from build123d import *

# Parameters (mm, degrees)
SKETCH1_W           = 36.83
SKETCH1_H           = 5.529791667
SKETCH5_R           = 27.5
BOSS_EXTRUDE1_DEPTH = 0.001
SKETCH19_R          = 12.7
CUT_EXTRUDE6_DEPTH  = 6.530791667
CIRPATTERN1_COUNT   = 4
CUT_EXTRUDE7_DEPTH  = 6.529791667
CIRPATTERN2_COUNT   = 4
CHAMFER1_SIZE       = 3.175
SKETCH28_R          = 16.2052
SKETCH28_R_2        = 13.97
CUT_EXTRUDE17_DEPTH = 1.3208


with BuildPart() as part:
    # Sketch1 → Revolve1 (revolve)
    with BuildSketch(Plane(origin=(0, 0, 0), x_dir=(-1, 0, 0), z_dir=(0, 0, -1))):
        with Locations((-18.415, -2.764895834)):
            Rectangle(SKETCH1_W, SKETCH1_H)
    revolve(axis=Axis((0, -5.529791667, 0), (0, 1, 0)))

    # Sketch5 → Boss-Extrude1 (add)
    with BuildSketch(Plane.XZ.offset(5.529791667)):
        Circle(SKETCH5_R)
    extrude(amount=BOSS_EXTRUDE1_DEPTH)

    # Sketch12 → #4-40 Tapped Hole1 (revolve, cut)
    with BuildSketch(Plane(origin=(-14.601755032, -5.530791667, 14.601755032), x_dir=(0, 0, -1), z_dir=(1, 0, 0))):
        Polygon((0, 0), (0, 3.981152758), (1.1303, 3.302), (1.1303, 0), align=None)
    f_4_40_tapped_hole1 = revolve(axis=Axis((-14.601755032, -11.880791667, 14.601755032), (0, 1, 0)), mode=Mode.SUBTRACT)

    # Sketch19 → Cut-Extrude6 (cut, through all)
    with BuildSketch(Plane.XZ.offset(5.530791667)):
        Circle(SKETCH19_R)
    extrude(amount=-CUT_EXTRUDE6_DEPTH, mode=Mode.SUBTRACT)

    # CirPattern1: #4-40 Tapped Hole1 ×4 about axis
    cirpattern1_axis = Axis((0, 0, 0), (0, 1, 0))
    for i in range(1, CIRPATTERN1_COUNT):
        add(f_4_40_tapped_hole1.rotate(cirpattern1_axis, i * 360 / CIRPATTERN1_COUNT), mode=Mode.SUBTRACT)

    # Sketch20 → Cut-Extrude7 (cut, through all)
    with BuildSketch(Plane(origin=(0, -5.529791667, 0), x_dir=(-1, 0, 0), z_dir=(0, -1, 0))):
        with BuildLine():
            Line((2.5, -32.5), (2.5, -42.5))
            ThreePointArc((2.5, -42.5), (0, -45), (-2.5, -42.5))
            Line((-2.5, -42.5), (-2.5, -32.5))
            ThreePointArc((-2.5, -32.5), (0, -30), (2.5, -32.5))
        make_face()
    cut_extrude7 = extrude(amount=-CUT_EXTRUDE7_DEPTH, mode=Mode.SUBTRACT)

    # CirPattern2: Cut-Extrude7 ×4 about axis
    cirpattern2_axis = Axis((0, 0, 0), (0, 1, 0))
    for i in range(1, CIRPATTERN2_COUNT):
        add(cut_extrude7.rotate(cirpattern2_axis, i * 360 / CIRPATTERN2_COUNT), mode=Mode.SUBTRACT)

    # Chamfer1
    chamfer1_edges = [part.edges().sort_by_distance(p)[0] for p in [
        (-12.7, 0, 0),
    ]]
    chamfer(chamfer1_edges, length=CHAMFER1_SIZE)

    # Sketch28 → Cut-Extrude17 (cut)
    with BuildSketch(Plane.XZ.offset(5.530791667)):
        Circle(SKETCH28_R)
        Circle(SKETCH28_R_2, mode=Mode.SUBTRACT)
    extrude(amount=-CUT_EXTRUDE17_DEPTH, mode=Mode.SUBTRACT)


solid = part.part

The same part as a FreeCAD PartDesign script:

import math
import FreeCAD as App
import Part
import Sketcher
Q = App.Units.Quantity


def edges_at(feature, points):
    """Names of the edges that pass closest to the given points."""
    edges = feature.Shape.Edges
    near = lambda p: min(range(len(edges)), key=lambda i: edges[i].distToShape(Part.Vertex(*p))[0])
    return sorted({f"Edge{near(p) + 1}" for p in points})


def add_polygon(sketch, points):
    """Adds a closed chain of lines whose ends are joined by coincident constraints."""
    first, n = sketch.GeometryCount, len(points)
    for a, b in zip(points, points[1:] + points[:1]):
        sketch.addGeometry(Part.LineSegment(App.Vector(*a, 0), App.Vector(*b, 0)), False)
    for i in range(n):
        sketch.addConstraint(Sketcher.Constraint("Coincident", first + i, 2, first + (i + 1) % n, 1))

doc = App.newDocument("Part")
body = doc.addObject("PartDesign::Body", "Body")

sketch1 = body.newObject("Sketcher::SketchObject", "Sketch")
sketch1.AttachmentSupport = (doc.getObject("XY_Plane"), [""])
sketch1.MapMode = "FlatFace"
add_polygon(sketch1, [(36.83, 0), (36.83, -5.529792), (0, -5.529792), (0, 0)])
sketch1.addConstraint([
    Sketcher.Constraint("Vertical", 0),
    Sketcher.Constraint("Horizontal", 1),
    Sketcher.Constraint("Vertical", 2),
    Sketcher.Constraint("Horizontal", 3),
    Sketcher.Constraint("Coincident", 2, 2, -1, 1),
    Sketcher.Constraint("DistanceX", 1, 2, 1, 1, Q("1.45 in")),
    Sketcher.Constraint("DistanceY", 0, 2, 0, 1, Q("5.529792 mm")),
])
revolution = body.newObject("PartDesign::Revolution", "Revolution")
revolution.Profile = sketch1
revolution.ReferenceAxis = (sketch1, ["V_Axis"])
revolution.Angle = 360

sketch2 = body.newObject("Sketcher::SketchObject", "Sketch001")
sketch2.AttachmentSupport = (doc.getObject("XZ_Plane"), [""])
sketch2.MapMode = "FlatFace"
sketch2.AttachmentOffset = App.Placement(App.Vector(0, 0, 5.529792), App.Rotation())
sketch2.addGeometry(Part.Circle(App.Vector(0, 0, 0), App.Vector(0, 0, 1), 27.5), False)
sketch2.addConstraint([
    Sketcher.Constraint("Coincident", 0, 3, -1, 1),
    Sketcher.Constraint("Diameter", 0, Q("55 mm")),
])
pad1 = body.newObject("PartDesign::Pad", "Pad")
pad1.Profile = sketch2
pad1.Length = 0.001

sketch3 = body.newObject("Sketcher::SketchObject", "Sketch002")
sketch3.AttachmentSupport = (doc.getObject("YZ_Plane"), [""])
sketch3.MapMode = "FlatFace"
sketch3.AttachmentOffset = App.Placement(App.Vector(0, 0, -14.601755), App.Rotation())
add_polygon(sketch3, [(-1.549639, 14.601755), (-5.530792, 14.601755), (-5.530792, 13.471455), (-2.228792, 13.471455)])
sketch3.addGeometry(Part.LineSegment(App.Vector(-5.530792, 14.601755, 0), App.Vector(-1.549639, 14.601755, 0)), True)
sketch3.addConstraint([
    Sketcher.Constraint("Horizontal", 0),
    Sketcher.Constraint("Vertical", 1),
    Sketcher.Constraint("Horizontal", 2),
    Sketcher.Constraint("Horizontal", 4),
    Sketcher.Constraint("Coincident", 4, 1, 0, 2),
    Sketcher.Constraint("Equal", 0, 4),
    Sketcher.Constraint("Angle", 3, Q("59 deg")),
    Sketcher.Constraint("DistanceX", 2, 1, 2, 2, Q("0.13 in")),
    Sketcher.Constraint("DistanceY", 1, 2, 1, 1, Q("0.0445 in")),
    Sketcher.Constraint("DistanceX", 0, 2, -1, 1, Q("5.530792 mm")),
    Sketcher.Constraint("DistanceY", -1, 1, 0, 2, Q("14.601755 mm")),
])
groove = body.newObject("PartDesign::Groove", "Groove")
groove.Profile = sketch3
groove.ReferenceAxis = (sketch3, ["Axis0"])
groove.Angle = 360

sketch4 = body.newObject("Sketcher::SketchObject", "Sketch003")
sketch4.AttachmentSupport = (doc.getObject("XZ_Plane"), [""])
sketch4.MapMode = "FlatFace"
sketch4.AttachmentOffset = App.Placement(App.Vector(0, 0, 5.530792), App.Rotation())
sketch4.addGeometry(Part.Circle(App.Vector(0, 0, 0), App.Vector(0, 0, 1), 12.7), False)
sketch4.addConstraint([
    Sketcher.Constraint("Coincident", 0, 3, -1, 1),
    Sketcher.Constraint("Diameter", 0, Q("1 in")),
])
pocket1 = body.newObject("PartDesign::Pocket", "Pocket")
pocket1.Profile = sketch4
pocket1.Type = "ThroughAll"
doc.recompute()

polarpattern = body.newObject("PartDesign::PolarPattern", "PolarPattern")
polarpattern.Originals = [groove]
polarpattern.Axis = (doc.getObject("Y_Axis"), [""])
polarpattern.Angle = 360
polarpattern.Occurrences = 4
body.Tip = polarpattern

sketch5 = body.newObject("Sketcher::SketchObject", "Sketch004")
sketch5.AttachmentSupport = (doc.getObject("XZ_Plane"), [""])
sketch5.MapMode = "FlatFace"
sketch5.AttachmentOffset = App.Placement(App.Vector(0, 0, 5.529792), App.Rotation())
sketch5.addGeometry([
    Part.LineSegment(App.Vector(-2.5, 42.5, 0), App.Vector(-2.5, 32.5, 0)),
    Part.ArcOfCircle(Part.Circle(App.Vector(0, 32.5, 0), App.Vector(0, 0, 1), 2.5), math.radians(180), math.radians(360)),
    Part.LineSegment(App.Vector(2.5, 32.5, 0), App.Vector(2.5, 42.5, 0)),
    Part.ArcOfCircle(Part.Circle(App.Vector(0, 42.5, 0), App.Vector(0, 0, 1), 2.5), math.radians(0), math.radians(180)),
], False)
sketch5.addConstraint([
    Sketcher.Constraint("Tangent", 0, 2, 1, 1),
    Sketcher.Constraint("Tangent", 1, 2, 2, 1),
    Sketcher.Constraint("Tangent", 2, 2, 3, 1),
    Sketcher.Constraint("Tangent", 3, 2, 0, 1),
    Sketcher.Constraint("Vertical", 0),
    Sketcher.Constraint("Vertical", 2),
    Sketcher.Constraint("PointOnObject", 1, 3, -2),
    Sketcher.Constraint("Radius", 1, Q("2.5 mm")),
    Sketcher.Constraint("DistanceY", 0, 2, 0, 1, Q("10 mm")),
    Sketcher.Constraint("DistanceY", -1, 1, 1, 3, Q("32.5 mm")),
])
pocket2 = body.newObject("PartDesign::Pocket", "Pocket001")
pocket2.Profile = sketch5
pocket2.Type = "ThroughAll"
doc.recompute()

polarpattern2 = body.newObject("PartDesign::PolarPattern", "PolarPattern001")
polarpattern2.Originals = [pocket2]
polarpattern2.Axis = (doc.getObject("Y_Axis"), [""])
polarpattern2.Angle = 360
polarpattern2.Occurrences = 4
body.Tip = polarpattern2
doc.recompute()

chamfer = body.newObject("PartDesign::Chamfer", "Chamfer")
chamfer.Base = (polarpattern2, edges_at(polarpattern2, [(-12.7, 0, 0)]))
chamfer.Size = Q("0.125 in")

sketch6 = body.newObject("Sketcher::SketchObject", "Sketch005")
sketch6.AttachmentSupport = (doc.getObject("XZ_Plane"), [""])
sketch6.MapMode = "FlatFace"
sketch6.AttachmentOffset = App.Placement(App.Vector(0, 0, 5.530792), App.Rotation())
sketch6.addGeometry([
    Part.Circle(App.Vector(0, 0, 0), App.Vector(0, 0, 1), 16.2052),
    Part.Circle(App.Vector(0, 0, 0), App.Vector(0, 0, 1), 13.97),
], False)
sketch6.addConstraint([
    Sketcher.Constraint("Coincident", 0, 3, -1, 1),
    Sketcher.Constraint("Coincident", 1, 3, -1, 1),
    Sketcher.Constraint("Diameter", 1, Q("1.1 in")),
    Sketcher.Constraint("Diameter", 0, Q("1.276 in")),
])
pocket3 = body.newObject("PartDesign::Pocket", "Pocket002")
pocket3.Profile = sketch6
pocket3.Length = Q("0.052 in")

doc.recompute()
